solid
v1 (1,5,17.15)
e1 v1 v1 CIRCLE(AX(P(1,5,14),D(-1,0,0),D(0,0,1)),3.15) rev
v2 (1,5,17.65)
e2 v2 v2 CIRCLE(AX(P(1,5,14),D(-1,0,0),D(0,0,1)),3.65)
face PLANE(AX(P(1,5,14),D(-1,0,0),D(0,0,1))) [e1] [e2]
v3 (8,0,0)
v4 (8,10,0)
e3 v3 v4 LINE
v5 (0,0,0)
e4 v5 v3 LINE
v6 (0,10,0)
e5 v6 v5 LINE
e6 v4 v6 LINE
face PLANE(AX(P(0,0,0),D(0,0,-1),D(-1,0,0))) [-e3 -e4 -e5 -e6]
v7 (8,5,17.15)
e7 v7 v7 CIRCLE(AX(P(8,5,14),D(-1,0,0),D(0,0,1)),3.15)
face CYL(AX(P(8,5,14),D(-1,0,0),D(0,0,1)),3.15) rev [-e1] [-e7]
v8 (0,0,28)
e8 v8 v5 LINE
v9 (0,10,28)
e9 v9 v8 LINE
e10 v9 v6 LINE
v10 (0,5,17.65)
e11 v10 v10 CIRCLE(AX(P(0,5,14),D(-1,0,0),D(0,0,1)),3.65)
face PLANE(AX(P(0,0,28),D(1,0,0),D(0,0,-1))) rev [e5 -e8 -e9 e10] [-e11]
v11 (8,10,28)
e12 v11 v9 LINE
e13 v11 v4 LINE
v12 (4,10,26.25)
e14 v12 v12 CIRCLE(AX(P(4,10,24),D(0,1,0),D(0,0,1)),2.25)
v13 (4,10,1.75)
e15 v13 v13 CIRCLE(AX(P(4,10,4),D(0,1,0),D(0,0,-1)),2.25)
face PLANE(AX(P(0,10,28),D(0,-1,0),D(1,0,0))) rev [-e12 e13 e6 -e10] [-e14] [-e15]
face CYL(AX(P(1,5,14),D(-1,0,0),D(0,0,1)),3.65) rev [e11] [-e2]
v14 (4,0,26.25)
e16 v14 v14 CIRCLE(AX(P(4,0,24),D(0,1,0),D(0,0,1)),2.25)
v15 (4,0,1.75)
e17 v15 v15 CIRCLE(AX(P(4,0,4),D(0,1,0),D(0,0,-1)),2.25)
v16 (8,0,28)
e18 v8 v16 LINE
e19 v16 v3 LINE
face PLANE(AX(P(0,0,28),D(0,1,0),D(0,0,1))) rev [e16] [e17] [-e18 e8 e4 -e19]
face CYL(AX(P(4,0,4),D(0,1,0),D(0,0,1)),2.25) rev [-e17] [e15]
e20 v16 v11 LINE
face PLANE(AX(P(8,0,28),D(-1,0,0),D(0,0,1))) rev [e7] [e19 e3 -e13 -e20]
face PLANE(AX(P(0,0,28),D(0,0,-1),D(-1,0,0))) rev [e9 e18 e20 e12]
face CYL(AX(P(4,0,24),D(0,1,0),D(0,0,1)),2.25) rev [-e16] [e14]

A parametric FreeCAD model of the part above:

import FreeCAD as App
import Part
import Sketcher

doc = App.newDocument("Part")
body = doc.addObject("PartDesign::Body", "Body")

# Sketch on XY plane
sketch1 = doc.addObject("Sketcher::SketchObject", "Sketch")
body.addObject(sketch1)
sketch1.AttachmentSupport = (doc.XY_Plane, [""])
sketch1.MapMode = "FlatFace"
sketch1.addGeometry(Part.LineSegment(App.Vector(0, 10, 0), App.Vector(0, 0, 0)), False)
sketch1.addGeometry(Part.LineSegment(App.Vector(0, 0, 0), App.Vector(8, 0, 0)), False)
sketch1.addGeometry(Part.LineSegment(App.Vector(8, 0, 0), App.Vector(8, 10, 0)), False)
sketch1.addGeometry(Part.LineSegment(App.Vector(8, 10, 0), App.Vector(0, 10, 0)), False)
sketch1.addConstraint(Sketcher.Constraint("Coincident", 0, 2, 1, 1))
sketch1.addConstraint(Sketcher.Constraint("Coincident", 1, 2, 2, 1))
sketch1.addConstraint(Sketcher.Constraint("Coincident", 2, 2, 3, 1))
sketch1.addConstraint(Sketcher.Constraint("Coincident", 3, 2, 0, 1))
sketch1.addConstraint(Sketcher.Constraint("Vertical", 0))
sketch1.addConstraint(Sketcher.Constraint("Horizontal", 1))
sketch1.addConstraint(Sketcher.Constraint("Vertical", 2))
sketch1.addConstraint(Sketcher.Constraint("Horizontal", 3))
sketch1.addConstraint(Sketcher.Constraint("Coincident", 0, 2, -1, 1))
sketch1.addConstraint(Sketcher.Constraint("DistanceX", 1, 1, 1, 2, 8.0))
sketch1.addConstraint(Sketcher.Constraint("DistanceY", 0, 2, 0, 1, 10.0))
pad1 = doc.addObject("PartDesign::Pad", "Pad")
body.addObject(pad1)
pad1.Profile = sketch1
pad1.Length = 28

# Sketch on XZ plane
sketch2 = doc.addObject("Sketcher::SketchObject", "Sketch001")
body.addObject(sketch2)
sketch2.AttachmentSupport = (doc.XZ_Plane, [""])
sketch2.MapMode = "FlatFace"
sketch2.AttachmentOffset = App.Placement(App.Vector(0, 0, -10), App.Rotation())
sketch2.addGeometry(Part.Circle(App.Vector(4, 24, 0), App.Vector(0, 0, 1), 2.2), False)
sketch2.addGeometry(Part.Circle(App.Vector(4, 4, 0), App.Vector(0, 0, 1), 2.2), False)
sketch2.addConstraint(Sketcher.Constraint("Equal", 0, 1))
sketch2.addConstraint(Sketcher.Constraint("Vertical", 0, 3, 1, 3))
sketch2.addConstraint(Sketcher.Constraint("Diameter", 0, 4.5))
sketch2.addConstraint(Sketcher.Constraint("DistanceX", -1, 1, 0, 3, 4.0))
sketch2.addConstraint(Sketcher.Constraint("DistanceY", -1, 1, 0, 3, 24.0))
sketch2.addConstraint(Sketcher.Constraint("DistanceY", -1, 1, 1, 3, 4.0))
pocket1 = doc.addObject("PartDesign::Pocket", "Pocket")
body.addObject(pocket1)
pocket1.Profile = sketch2
pocket1.Type = "ThroughAll"
pocket1.Reversed = True

# Sketch on YZ plane
sketch3 = doc.addObject("Sketcher::SketchObject", "Sketch002")
body.addObject(sketch3)
sketch3.AttachmentSupport = (doc.YZ_Plane, [""])
sketch3.MapMode = "FlatFace"
sketch3.addGeometry(Part.Circle(App.Vector(5, 14, 0), App.Vector(0, 0, 1), 3.1), False)
sketch3.addConstraint(Sketcher.Constraint("Diameter", 0, 6.3))
sketch3.addConstraint(Sketcher.Constraint("DistanceX", -1, 1, 0, 3, 5.0))
sketch3.addConstraint(Sketcher.Constraint("DistanceY", -1, 1, 0, 3, 14.0))
pocket2 = doc.addObject("PartDesign::Pocket", "Pocket001")
body.addObject(pocket2)
pocket2.Profile = sketch3
pocket2.Type = "ThroughAll"
pocket2.Midplane = True

# Sketch on YZ plane
sketch4 = doc.addObject("Sketcher::SketchObject", "Sketch003")
body.addObject(sketch4)
sketch4.AttachmentSupport = (doc.YZ_Plane, [""])
sketch4.MapMode = "FlatFace"
sketch4.addGeometry(Part.Circle(App.Vector(5, 14, 0), App.Vector(0, 0, 1), 3.6), False)
sketch4.addConstraint(Sketcher.Constraint("Diameter", 0, 7.3))
sketch4.addConstraint(Sketcher.Constraint("DistanceX", -1, 1, 0, 3, 5.0))
sketch4.addConstraint(Sketcher.Constraint("DistanceY", -1, 1, 0, 3, 14.0))
pocket3 = doc.addObject("PartDesign::Pocket", "Pocket002")
body.addObject(pocket3)
pocket3.Profile = sketch4
pocket3.Length = 1
pocket3.Reversed = True

doc.recompute()
